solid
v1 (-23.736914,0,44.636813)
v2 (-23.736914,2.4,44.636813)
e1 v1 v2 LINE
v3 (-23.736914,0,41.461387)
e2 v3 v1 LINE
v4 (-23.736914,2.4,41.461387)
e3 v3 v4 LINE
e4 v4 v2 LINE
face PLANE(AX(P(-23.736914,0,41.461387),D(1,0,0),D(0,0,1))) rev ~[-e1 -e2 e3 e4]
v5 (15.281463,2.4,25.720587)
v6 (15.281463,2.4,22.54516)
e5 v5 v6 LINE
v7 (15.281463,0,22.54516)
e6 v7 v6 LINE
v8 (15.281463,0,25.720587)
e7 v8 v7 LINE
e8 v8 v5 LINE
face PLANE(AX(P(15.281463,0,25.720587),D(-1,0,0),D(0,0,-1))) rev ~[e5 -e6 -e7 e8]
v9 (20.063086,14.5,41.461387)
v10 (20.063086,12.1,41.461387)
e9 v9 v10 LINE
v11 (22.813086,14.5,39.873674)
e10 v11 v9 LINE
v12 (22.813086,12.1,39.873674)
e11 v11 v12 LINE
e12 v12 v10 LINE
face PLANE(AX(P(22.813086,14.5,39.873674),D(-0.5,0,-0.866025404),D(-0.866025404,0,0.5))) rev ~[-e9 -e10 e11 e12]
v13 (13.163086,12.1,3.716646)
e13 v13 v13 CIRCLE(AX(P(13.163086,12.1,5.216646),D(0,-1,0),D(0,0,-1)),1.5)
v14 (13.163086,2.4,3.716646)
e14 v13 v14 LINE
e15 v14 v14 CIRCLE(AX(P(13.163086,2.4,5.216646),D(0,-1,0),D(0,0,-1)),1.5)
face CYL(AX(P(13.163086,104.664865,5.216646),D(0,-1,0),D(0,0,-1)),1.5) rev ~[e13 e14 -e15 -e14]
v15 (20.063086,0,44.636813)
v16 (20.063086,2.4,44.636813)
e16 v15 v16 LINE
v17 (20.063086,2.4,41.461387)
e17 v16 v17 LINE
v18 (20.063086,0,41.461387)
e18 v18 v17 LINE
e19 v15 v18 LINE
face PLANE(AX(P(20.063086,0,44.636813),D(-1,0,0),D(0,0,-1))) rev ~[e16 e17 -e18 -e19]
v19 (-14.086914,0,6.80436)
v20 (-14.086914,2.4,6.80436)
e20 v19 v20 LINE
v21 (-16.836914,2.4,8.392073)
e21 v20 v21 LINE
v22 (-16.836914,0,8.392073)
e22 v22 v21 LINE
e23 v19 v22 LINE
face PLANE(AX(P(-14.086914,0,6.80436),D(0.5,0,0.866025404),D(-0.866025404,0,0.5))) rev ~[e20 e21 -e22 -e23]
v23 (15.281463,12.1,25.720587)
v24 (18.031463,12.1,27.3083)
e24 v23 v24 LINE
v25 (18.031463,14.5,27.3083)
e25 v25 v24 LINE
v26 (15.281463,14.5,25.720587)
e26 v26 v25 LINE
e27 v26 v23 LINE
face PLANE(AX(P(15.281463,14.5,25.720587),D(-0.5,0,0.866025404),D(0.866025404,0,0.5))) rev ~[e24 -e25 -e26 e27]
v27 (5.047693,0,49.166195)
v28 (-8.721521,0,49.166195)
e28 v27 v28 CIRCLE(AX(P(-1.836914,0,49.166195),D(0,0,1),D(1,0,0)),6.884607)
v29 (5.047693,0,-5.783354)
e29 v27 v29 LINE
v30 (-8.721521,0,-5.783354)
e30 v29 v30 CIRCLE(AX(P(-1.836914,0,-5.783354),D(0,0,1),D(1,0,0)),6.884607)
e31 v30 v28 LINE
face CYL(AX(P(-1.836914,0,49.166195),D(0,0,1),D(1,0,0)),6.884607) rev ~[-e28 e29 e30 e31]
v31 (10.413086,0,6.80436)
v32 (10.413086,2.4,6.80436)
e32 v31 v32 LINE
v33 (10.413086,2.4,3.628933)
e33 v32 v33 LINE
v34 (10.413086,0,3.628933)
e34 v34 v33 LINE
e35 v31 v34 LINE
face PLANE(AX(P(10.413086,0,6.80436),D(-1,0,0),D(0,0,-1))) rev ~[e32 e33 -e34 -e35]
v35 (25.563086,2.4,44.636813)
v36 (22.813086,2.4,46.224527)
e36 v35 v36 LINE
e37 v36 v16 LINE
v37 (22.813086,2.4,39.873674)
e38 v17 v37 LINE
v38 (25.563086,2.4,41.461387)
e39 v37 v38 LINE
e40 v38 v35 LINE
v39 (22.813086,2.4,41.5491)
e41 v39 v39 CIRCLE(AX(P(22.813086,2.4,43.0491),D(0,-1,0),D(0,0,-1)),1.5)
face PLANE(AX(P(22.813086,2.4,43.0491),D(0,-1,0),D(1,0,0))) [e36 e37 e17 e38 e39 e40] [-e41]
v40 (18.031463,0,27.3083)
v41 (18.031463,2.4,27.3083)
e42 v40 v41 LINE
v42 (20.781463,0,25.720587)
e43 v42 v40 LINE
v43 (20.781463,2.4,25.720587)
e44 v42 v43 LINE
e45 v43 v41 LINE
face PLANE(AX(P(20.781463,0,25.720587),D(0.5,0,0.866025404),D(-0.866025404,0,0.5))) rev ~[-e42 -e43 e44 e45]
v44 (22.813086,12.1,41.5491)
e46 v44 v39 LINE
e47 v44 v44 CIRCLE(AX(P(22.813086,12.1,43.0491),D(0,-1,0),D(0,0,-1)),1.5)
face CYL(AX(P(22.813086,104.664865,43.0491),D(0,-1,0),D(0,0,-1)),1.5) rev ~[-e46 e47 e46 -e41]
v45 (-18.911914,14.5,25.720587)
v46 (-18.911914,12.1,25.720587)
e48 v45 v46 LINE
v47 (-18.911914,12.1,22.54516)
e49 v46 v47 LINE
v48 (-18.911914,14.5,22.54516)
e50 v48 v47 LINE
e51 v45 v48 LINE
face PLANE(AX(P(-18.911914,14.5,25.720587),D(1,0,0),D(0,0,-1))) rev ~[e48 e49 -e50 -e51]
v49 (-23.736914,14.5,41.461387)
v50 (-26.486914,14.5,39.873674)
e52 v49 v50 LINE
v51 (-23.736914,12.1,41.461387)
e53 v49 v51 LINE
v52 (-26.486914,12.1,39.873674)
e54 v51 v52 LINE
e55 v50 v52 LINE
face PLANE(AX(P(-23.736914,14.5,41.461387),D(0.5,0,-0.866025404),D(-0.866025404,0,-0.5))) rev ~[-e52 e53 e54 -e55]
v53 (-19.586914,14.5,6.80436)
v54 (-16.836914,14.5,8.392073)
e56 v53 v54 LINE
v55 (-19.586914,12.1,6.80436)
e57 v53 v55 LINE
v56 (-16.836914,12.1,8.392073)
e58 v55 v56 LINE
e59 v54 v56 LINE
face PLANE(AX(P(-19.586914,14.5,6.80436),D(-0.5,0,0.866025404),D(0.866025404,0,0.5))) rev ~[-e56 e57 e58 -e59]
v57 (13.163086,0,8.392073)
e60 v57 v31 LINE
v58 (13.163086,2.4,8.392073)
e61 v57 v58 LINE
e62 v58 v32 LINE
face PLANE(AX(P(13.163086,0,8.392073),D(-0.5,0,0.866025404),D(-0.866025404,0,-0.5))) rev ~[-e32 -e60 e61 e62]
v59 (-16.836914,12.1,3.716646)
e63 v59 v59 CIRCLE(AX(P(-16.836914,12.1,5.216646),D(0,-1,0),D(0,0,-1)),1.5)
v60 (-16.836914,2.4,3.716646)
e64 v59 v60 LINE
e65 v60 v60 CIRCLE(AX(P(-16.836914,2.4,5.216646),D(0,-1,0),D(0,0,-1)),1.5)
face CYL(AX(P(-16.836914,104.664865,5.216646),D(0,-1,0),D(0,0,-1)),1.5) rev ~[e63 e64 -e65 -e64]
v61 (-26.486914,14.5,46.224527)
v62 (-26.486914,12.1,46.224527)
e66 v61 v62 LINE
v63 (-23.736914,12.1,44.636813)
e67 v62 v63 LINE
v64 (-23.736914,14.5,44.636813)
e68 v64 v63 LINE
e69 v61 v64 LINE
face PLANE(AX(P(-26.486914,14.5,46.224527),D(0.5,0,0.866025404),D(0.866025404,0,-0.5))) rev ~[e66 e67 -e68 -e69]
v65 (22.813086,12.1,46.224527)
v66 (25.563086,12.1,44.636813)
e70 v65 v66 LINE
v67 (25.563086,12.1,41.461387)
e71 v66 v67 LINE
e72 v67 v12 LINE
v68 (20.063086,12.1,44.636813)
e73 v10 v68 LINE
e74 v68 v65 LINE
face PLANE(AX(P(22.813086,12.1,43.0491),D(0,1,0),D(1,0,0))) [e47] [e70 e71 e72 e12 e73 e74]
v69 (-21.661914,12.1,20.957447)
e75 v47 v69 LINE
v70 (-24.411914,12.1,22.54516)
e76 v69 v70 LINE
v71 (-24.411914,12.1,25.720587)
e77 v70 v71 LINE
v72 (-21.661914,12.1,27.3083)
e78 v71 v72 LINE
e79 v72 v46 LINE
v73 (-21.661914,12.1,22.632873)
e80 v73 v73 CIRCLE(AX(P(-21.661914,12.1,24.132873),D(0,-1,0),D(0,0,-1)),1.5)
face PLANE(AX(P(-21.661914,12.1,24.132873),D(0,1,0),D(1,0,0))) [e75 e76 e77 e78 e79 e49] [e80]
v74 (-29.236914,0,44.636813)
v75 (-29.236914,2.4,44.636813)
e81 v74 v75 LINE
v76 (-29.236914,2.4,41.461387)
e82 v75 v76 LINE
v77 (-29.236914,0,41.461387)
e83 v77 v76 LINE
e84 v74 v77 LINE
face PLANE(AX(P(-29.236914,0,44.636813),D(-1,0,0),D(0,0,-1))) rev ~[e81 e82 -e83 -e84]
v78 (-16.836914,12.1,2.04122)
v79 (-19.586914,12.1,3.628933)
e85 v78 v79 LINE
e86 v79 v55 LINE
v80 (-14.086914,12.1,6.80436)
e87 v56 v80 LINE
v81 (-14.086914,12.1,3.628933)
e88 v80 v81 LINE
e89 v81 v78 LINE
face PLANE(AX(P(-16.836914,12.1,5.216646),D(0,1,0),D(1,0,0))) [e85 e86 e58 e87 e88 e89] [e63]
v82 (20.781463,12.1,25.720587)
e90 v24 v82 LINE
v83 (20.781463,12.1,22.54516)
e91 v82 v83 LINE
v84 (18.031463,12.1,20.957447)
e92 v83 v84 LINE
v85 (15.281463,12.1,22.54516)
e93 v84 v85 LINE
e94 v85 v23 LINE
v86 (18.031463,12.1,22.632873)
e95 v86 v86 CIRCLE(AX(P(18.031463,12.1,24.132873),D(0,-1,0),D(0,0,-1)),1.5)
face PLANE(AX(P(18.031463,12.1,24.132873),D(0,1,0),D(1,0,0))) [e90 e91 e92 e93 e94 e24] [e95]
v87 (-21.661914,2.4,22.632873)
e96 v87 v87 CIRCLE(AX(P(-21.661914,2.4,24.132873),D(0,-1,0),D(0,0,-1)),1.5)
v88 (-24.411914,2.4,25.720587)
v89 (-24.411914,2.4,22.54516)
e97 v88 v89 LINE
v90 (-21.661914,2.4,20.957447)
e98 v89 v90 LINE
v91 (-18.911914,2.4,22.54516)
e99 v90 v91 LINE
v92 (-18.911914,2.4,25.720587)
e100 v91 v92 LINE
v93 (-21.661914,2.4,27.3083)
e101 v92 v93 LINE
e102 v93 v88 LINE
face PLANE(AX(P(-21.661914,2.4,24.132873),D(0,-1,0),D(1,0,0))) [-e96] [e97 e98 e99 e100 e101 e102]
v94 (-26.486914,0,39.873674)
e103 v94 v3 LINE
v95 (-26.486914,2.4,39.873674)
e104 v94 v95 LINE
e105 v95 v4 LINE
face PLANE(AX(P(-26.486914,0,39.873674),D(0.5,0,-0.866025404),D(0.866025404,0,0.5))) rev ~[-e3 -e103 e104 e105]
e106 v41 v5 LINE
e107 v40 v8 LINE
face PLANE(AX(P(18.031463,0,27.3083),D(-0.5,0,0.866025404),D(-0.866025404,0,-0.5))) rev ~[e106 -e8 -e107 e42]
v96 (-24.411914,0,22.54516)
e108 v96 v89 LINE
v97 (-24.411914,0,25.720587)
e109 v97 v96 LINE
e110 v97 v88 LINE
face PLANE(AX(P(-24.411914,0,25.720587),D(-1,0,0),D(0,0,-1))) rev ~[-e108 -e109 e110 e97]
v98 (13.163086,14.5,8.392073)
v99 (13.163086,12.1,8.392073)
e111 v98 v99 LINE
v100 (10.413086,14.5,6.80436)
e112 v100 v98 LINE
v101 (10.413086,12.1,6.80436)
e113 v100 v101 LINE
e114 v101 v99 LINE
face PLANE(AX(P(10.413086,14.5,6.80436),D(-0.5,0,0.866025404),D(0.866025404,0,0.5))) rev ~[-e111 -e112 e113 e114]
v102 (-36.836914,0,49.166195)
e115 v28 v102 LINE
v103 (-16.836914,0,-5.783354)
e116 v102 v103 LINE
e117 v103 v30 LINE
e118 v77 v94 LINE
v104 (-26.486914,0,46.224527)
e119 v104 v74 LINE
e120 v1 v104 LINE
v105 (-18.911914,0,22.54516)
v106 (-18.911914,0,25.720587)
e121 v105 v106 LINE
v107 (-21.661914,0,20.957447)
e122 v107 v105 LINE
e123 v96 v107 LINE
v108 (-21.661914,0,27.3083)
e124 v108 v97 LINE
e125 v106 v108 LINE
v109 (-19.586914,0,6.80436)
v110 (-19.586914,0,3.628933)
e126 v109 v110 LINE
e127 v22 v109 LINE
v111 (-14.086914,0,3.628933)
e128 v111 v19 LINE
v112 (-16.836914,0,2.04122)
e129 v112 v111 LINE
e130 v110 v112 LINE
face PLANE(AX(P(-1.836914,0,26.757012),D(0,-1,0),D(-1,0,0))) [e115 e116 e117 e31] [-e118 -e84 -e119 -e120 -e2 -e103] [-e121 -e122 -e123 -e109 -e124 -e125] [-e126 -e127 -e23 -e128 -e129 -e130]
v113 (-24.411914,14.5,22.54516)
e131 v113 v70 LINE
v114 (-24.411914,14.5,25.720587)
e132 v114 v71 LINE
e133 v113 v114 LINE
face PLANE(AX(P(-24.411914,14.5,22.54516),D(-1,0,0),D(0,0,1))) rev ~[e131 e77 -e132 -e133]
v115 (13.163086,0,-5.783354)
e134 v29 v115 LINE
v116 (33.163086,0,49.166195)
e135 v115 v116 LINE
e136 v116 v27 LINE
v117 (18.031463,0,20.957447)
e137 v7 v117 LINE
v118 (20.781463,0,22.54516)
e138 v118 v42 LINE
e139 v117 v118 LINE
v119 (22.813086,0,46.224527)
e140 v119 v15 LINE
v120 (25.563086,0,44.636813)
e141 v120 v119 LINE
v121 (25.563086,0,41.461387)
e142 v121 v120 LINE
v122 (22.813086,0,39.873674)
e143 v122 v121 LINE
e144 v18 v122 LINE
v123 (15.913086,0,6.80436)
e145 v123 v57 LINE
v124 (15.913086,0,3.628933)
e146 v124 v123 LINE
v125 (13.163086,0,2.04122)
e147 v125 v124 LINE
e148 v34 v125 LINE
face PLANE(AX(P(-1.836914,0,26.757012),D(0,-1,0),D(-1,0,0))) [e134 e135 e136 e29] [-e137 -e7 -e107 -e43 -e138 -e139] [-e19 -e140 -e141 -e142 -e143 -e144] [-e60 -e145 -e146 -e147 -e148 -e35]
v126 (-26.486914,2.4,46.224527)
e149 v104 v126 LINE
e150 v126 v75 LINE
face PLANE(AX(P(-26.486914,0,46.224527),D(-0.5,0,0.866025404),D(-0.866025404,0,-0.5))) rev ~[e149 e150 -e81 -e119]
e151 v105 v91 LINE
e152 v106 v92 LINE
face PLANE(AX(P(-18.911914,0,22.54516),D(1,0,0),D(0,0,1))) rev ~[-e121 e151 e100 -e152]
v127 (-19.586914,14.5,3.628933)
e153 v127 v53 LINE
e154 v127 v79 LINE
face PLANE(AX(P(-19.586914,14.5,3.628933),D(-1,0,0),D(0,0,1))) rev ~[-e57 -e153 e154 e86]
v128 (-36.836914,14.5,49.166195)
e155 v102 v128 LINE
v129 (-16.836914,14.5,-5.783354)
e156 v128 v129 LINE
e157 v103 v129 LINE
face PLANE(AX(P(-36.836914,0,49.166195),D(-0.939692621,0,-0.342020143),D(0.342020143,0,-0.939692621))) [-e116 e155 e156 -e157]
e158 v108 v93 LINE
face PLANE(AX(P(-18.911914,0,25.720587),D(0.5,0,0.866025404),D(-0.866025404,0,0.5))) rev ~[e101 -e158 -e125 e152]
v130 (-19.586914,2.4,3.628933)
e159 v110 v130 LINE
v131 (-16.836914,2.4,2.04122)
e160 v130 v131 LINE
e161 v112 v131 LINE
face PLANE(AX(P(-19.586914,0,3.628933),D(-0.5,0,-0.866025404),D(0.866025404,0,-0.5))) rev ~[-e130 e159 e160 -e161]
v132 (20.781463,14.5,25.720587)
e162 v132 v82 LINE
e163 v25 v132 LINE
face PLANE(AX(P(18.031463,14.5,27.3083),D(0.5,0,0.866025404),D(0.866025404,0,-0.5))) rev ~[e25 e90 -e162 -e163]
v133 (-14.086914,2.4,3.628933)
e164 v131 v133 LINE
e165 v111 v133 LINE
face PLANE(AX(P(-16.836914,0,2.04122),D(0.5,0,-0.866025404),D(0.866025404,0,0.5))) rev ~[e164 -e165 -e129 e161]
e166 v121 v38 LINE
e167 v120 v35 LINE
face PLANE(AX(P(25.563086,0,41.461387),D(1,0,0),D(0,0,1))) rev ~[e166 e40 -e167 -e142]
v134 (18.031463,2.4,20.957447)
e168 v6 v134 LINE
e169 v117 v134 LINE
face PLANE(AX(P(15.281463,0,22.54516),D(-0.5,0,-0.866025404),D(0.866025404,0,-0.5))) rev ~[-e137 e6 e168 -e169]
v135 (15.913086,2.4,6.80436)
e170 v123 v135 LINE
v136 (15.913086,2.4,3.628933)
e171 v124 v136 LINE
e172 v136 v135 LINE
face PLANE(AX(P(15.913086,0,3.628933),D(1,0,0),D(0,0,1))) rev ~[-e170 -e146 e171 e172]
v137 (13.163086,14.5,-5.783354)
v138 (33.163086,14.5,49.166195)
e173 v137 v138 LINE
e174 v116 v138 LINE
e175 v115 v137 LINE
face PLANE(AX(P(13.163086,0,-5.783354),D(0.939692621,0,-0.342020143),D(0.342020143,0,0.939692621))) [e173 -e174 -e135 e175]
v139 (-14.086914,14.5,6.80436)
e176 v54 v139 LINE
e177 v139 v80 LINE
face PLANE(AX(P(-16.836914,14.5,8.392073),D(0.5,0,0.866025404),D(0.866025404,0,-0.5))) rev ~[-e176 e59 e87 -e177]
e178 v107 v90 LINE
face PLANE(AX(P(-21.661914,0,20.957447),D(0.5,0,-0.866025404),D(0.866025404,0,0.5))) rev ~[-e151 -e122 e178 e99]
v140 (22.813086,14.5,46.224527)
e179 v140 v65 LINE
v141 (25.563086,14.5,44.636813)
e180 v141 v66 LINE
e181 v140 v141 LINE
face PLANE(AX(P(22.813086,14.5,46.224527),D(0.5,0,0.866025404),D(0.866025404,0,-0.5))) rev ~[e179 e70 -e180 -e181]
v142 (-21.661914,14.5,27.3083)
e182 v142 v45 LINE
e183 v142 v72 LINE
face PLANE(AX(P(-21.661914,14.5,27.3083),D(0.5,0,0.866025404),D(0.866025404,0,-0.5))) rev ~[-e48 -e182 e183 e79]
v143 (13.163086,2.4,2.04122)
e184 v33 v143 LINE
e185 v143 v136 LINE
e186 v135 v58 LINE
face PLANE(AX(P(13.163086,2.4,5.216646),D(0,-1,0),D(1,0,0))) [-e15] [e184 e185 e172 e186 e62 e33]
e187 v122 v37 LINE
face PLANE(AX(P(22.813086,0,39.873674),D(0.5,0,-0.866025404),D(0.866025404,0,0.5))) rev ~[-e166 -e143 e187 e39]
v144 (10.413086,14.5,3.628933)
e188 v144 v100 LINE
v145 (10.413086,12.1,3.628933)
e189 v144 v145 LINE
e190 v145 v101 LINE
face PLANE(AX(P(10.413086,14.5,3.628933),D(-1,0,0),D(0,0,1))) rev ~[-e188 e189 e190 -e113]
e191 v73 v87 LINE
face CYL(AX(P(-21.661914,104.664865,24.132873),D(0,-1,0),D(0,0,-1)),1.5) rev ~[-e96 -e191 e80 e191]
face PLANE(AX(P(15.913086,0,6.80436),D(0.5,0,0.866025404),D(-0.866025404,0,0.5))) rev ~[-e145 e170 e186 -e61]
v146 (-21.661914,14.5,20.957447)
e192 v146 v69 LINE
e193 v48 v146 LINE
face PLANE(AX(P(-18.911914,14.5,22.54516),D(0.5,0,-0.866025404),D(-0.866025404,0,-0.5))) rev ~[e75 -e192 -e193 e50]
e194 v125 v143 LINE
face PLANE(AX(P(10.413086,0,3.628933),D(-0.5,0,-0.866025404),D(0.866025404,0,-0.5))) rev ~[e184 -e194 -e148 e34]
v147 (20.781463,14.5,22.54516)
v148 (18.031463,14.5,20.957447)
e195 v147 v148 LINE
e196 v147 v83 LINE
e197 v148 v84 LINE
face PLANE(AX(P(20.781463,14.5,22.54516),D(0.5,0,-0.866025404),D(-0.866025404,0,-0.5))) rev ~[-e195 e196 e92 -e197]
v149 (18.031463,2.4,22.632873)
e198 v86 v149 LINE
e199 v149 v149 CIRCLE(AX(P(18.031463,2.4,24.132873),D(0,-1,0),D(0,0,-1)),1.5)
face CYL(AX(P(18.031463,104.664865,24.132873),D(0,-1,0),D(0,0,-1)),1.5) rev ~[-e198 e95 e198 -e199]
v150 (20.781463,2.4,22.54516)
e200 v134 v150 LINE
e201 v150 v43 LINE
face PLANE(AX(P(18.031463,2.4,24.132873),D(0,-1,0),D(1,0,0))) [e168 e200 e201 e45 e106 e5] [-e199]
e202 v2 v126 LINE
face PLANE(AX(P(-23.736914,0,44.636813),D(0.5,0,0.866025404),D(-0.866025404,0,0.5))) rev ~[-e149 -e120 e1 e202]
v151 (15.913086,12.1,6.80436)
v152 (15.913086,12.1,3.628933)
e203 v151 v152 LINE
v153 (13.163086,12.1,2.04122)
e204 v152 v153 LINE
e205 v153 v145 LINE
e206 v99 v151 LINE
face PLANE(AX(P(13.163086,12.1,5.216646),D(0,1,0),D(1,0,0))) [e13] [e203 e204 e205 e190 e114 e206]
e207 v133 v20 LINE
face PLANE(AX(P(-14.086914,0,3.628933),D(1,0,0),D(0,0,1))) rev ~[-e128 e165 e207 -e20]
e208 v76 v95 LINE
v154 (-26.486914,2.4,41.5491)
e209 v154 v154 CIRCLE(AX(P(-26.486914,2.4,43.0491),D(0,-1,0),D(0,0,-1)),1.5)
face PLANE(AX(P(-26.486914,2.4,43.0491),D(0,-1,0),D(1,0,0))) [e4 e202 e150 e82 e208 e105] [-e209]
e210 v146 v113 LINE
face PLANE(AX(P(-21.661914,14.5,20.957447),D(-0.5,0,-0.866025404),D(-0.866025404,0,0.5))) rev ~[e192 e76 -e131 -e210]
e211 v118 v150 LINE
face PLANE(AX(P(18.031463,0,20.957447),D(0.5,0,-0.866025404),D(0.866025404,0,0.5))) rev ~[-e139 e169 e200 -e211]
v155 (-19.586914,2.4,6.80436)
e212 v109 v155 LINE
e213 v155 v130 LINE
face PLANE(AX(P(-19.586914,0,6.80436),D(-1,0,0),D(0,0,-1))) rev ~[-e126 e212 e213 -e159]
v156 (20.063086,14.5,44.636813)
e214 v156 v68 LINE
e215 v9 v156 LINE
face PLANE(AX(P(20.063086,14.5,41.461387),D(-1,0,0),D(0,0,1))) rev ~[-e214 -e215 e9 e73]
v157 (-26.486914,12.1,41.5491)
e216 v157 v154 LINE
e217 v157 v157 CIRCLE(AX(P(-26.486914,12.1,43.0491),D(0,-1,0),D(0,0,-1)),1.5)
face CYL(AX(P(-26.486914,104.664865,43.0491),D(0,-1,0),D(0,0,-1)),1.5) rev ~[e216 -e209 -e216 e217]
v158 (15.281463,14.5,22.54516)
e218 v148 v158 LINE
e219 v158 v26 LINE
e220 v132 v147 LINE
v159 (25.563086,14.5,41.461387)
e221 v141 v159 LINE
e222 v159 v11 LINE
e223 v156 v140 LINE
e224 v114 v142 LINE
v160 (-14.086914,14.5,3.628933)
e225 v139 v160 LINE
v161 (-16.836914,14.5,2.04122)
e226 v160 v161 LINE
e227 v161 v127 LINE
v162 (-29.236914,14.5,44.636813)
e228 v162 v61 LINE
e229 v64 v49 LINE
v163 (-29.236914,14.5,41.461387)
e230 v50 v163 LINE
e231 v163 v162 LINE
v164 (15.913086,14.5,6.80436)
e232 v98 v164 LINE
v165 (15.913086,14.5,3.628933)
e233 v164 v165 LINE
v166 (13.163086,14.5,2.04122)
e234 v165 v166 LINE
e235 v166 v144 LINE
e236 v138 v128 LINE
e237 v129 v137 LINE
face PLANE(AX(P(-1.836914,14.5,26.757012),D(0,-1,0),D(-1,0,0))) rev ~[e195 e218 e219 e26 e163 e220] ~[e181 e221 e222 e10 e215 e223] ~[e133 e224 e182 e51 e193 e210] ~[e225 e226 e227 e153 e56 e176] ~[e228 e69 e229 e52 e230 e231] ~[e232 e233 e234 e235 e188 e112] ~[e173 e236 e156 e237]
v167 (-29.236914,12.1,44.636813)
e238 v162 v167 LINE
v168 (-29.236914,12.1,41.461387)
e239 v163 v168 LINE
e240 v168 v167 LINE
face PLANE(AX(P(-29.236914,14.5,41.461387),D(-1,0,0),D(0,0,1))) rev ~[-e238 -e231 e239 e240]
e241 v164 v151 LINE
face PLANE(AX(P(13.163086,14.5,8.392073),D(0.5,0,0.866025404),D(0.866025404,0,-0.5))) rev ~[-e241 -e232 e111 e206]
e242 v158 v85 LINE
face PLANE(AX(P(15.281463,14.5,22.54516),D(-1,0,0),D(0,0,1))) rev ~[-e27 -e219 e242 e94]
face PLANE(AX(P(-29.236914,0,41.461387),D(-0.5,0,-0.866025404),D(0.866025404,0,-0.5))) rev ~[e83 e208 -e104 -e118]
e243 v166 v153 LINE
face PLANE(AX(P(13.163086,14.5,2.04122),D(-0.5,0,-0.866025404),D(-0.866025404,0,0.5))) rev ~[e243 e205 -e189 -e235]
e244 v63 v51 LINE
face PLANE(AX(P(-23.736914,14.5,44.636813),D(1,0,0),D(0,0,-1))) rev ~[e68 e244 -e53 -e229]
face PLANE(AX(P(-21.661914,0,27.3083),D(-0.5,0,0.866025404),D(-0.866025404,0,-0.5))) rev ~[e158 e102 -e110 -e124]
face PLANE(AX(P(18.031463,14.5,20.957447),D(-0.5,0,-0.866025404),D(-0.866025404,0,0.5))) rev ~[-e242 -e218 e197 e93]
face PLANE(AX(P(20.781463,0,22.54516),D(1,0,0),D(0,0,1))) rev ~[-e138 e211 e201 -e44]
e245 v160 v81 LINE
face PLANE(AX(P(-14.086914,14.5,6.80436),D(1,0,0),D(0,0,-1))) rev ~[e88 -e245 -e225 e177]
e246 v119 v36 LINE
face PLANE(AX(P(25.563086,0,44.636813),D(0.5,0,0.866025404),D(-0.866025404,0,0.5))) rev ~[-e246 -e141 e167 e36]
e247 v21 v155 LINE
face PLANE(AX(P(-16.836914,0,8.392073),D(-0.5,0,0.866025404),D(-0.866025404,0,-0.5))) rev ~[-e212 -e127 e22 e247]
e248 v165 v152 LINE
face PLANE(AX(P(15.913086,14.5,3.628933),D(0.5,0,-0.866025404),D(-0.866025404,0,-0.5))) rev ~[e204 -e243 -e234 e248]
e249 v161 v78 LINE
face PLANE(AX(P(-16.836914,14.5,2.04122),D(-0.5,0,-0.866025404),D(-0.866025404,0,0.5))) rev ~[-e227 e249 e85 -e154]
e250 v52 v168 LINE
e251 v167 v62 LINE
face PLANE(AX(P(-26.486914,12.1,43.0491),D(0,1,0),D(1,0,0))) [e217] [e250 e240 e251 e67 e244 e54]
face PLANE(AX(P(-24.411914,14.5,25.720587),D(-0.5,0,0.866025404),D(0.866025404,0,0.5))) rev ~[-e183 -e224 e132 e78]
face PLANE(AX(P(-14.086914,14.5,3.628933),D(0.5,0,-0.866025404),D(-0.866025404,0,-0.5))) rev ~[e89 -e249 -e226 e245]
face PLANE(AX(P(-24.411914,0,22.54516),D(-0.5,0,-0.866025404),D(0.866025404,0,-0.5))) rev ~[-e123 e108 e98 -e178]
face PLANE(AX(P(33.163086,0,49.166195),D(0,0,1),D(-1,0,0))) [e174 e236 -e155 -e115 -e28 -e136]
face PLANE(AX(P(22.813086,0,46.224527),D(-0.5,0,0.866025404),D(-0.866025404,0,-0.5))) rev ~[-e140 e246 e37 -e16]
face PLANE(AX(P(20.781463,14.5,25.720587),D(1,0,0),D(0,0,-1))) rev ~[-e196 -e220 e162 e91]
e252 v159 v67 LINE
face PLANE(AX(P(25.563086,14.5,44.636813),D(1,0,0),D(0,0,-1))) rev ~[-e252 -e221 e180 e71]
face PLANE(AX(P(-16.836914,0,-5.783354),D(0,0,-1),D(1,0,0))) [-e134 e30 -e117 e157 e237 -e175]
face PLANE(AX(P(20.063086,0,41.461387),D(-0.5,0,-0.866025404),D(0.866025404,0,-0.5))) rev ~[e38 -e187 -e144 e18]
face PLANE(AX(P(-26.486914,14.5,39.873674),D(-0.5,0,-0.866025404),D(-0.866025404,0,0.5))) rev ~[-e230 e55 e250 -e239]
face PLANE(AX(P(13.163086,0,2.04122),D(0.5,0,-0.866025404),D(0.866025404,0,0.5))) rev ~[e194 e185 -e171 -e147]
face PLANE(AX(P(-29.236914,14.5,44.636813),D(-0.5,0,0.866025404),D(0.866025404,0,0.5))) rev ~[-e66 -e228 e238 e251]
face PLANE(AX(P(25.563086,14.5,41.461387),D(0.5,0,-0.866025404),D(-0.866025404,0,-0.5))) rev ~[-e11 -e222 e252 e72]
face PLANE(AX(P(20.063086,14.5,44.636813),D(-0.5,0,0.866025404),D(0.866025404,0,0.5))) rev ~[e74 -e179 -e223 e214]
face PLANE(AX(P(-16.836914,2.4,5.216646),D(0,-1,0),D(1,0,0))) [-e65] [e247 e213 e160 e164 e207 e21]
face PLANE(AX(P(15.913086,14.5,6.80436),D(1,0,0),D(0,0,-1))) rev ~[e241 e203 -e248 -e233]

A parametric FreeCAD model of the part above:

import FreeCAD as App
import Part
import Sketcher
Q = App.Units.Quantity

doc = App.newDocument("Part")
body = doc.addObject("PartDesign::Body", "Body")

sketch1 = body.newObject("Sketcher::SketchObject", "Sketch")
sketch1.AttachmentSupport = (doc.getObject("XZ_Plane"), [""])
sketch1.MapMode = "FlatFace"
sketch1.addGeometry(Part.LineSegment(App.Vector(13, -6, 0), App.Vector(-17, -6, 0)), False)
sketch1.addGeometry(Part.LineSegment(App.Vector(-17, -6, 0), App.Vector(-37, 49, 0)), False)
sketch1.addGeometry(Part.LineSegment(App.Vector(-37, 49, 0), App.Vector(33, 49, 0)), False)
sketch1.addGeometry(Part.LineSegment(App.Vector(33, 49, 0), App.Vector(13, -6, 0)), False)
sketch1.addConstraint(Sketcher.Constraint("Coincident", 0, 2, 1, 1))
sketch1.addConstraint(Sketcher.Constraint("Coincident", 1, 2, 2, 1))
sketch1.addConstraint(Sketcher.Constraint("Coincident", 2, 2, 3, 1))
sketch1.addConstraint(Sketcher.Constraint("Coincident", 3, 2, 0, 1))
sketch1.addConstraint(Sketcher.Constraint("Horizontal", 0))
sketch1.addConstraint(Sketcher.Constraint("Horizontal", 2))
sketch1.addConstraint(Sketcher.Constraint("Equal", 1, 3))
sketch1.addConstraint(Sketcher.Constraint("DistanceX", 0, 2, 0, 1, Q("30 mm")))
sketch1.addConstraint(Sketcher.Constraint("DistanceX", 2, 1, 2, 2, Q("70 mm")))
sketch1.addConstraint(Sketcher.Constraint("Angle", 1, Q("110 deg")))
sketch1.addConstraint(Sketcher.Constraint("DistanceX", 0, 2, -1, 1, Q("16.836914 mm")))
sketch1.addConstraint(Sketcher.Constraint("DistanceY", 0, 2, -1, 1, Q("5.783354 mm")))
pad1 = body.newObject("PartDesign::Pad", "Pad")
pad1.Profile = sketch1
pad1.Length = 14.5
pad1.Reversed = True

sketch2 = body.newObject("Sketcher::SketchObject", "Sketch001")
sketch2.AttachmentSupport = (doc.getObject("XY_Plane"), [""])
sketch2.MapMode = "FlatFace"
sketch2.AttachmentOffset = App.Placement(App.Vector(0, 0, 49.166195), App.Rotation())
sketch2.addGeometry(Part.Circle(App.Vector(-2, 0, 0), App.Vector(0, 0, 1), 7), False)
sketch2.addConstraint(Sketcher.Constraint("PointOnObject", 0, 3, -1))
sketch2.addConstraint(Sketcher.Constraint("Diameter", 0, Q("13.769213 mm")))
sketch2.addConstraint(Sketcher.Constraint("DistanceX", 0, 3, -1, 1, Q("1.836914 mm")))
pocket1 = body.newObject("PartDesign::Pocket", "Pocket")
pocket1.Profile = sketch2
pocket1.Length = 88

sketch3 = body.newObject("Sketcher::SketchObject", "Sketch002")
sketch3.AttachmentSupport = (doc.getObject("XZ_Plane"), [""])
sketch3.MapMode = "FlatFace"
sketch3.AttachmentOffset = App.Placement(App.Vector(0, 0, -14.5), App.Rotation())
sketch3.addGeometry(Part.LineSegment(App.Vector(-21.7, 27.3, 0), App.Vector(-18.9, 25.7, 0)), False)
sketch3.addGeometry(Part.LineSegment(App.Vector(-18.9, 25.7, 0), App.Vector(-18.9, 22.5, 0)), False)
sketch3.addGeometry(Part.LineSegment(App.Vector(-18.9, 22.5, 0), App.Vector(-21.7, 21, 0)), False)
sketch3.addGeometry(Part.LineSegment(App.Vector(-21.7, 21, 0), App.Vector(-24.4, 22.5, 0)), False)
sketch3.addGeometry(Part.LineSegment(App.Vector(-24.4, 22.5, 0), App.Vector(-24.4, 25.7, 0)), False)
sketch3.addGeometry(Part.LineSegment(App.Vector(-24.4, 25.7, 0), App.Vector(-21.7, 27.3, 0)), False)
sketch3.addGeometry(Part.LineSegment(App.Vector(-26.5, 46.2, 0), App.Vector(-23.7, 44.6, 0)), False)
sketch3.addGeometry(Part.LineSegment(App.Vector(-23.7, 44.6, 0), App.Vector(-23.7, 41.5, 0)), False)
sketch3.addGeometry(Part.LineSegment(App.Vector(-23.7, 41.5, 0), App.Vector(-26.5, 39.9, 0)), False)
sketch3.addGeometry(Part.LineSegment(App.Vector(-26.5, 39.9, 0), App.Vector(-29.2, 41.5, 0)), False)
sketch3.addGeometry(Part.LineSegment(App.Vector(-29.2, 41.5, 0), App.Vector(-29.2, 44.6, 0)), False)
sketch3.addGeometry(Part.LineSegment(App.Vector(-29.2, 44.6, 0), App.Vector(-26.5, 46.2, 0)), False)
sketch3.addGeometry(Part.LineSegment(App.Vector(22.8, 46.2, 0), App.Vector(25.6, 44.6, 0)), False)
sketch3.addGeometry(Part.LineSegment(App.Vector(25.6, 44.6, 0), App.Vector(25.6, 41.5, 0)), False)
sketch3.addGeometry(Part.LineSegment(App.Vector(25.6, 41.5, 0), App.Vector(22.8, 39.9, 0)), False)
sketch3.addGeometry(Part.LineSegment(App.Vector(22.8, 39.9, 0), App.Vector(20.1, 41.5, 0)), False)
sketch3.addGeometry(Part.LineSegment(App.Vector(20.1, 41.5, 0), App.Vector(20.1, 44.6, 0)), False)
sketch3.addGeometry(Part.LineSegment(App.Vector(20.1, 44.6, 0), App.Vector(22.8, 46.2, 0)), False)
sketch3.addGeometry(Part.LineSegment(App.Vector(18, 27.3, 0), App.Vector(20.8, 25.7, 0)), False)
sketch3.addGeometry(Part.LineSegment(App.Vector(20.8, 25.7, 0), App.Vector(20.8, 22.5, 0)), False)
sketch3.addGeometry(Part.LineSegment(App.Vector(20.8, 22.5, 0), App.Vector(18, 21, 0)), False)
sketch3.addGeometry(Part.LineSegment(App.Vector(18, 21, 0), App.Vector(15.3, 22.5, 0)), False)
sketch3.addGeometry(Part.LineSegment(App.Vector(15.3, 22.5, 0), App.Vector(15.3, 25.7, 0)), False)
sketch3.addGeometry(Part.LineSegment(App.Vector(15.3, 25.7, 0), App.Vector(18, 27.3, 0)), False)
sketch3.addGeometry(Part.LineSegment(App.Vector(-16.8, 8.4, 0), App.Vector(-14.1, 6.8, 0)), False)
sketch3.addGeometry(Part.LineSegment(App.Vector(-14.1, 6.8, 0), App.Vector(-14.1, 3.6, 0)), False)
sketch3.addGeometry(Part.LineSegment(App.Vector(-14.1, 3.6, 0), App.Vector(-16.8, 2, 0)), False)
sketch3.addGeometry(Part.LineSegment(App.Vector(-16.8, 2, 0), App.Vector(-19.6, 3.6, 0)), False)
sketch3.addGeometry(Part.LineSegment(App.Vector(-19.6, 3.6, 0), App.Vector(-19.6, 6.8, 0)), False)
sketch3.addGeometry(Part.LineSegment(App.Vector(-19.6, 6.8, 0), App.Vector(-16.8, 8.4, 0)), False)
sketch3.addGeometry(Part.LineSegment(App.Vector(13.2, 8.4, 0), App.Vector(15.9, 6.8, 0)), False)
sketch3.addGeometry(Part.LineSegment(App.Vector(15.9, 6.8, 0), App.Vector(15.9, 3.6, 0)), False)
sketch3.addGeometry(Part.LineSegment(App.Vector(15.9, 3.6, 0), App.Vector(13.2, 2, 0)), False)
sketch3.addGeometry(Part.LineSegment(App.Vector(13.2, 2, 0), App.Vector(10.4, 3.6, 0)), False)
sketch3.addGeometry(Part.LineSegment(App.Vector(10.4, 3.6, 0), App.Vector(10.4, 6.8, 0)), False)
sketch3.addGeometry(Part.LineSegment(App.Vector(10.4, 6.8, 0), App.Vector(13.2, 8.4, 0)), False)
sketch3.addConstraint(Sketcher.Constraint("Coincident", 0, 2, 1, 1))
sketch3.addConstraint(Sketcher.Constraint("Coincident", 1, 2, 2, 1))
sketch3.addConstraint(Sketcher.Constraint("Coincident", 2, 2, 3, 1))
sketch3.addConstraint(Sketcher.Constraint("Coincident", 3, 2, 4, 1))
sketch3.addConstraint(Sketcher.Constraint("Coincident", 4, 2, 5, 1))
sketch3.addConstraint(Sketcher.Constraint("Coincident", 5, 2, 0, 1))
sketch3.addConstraint(Sketcher.Constraint("Coincident", 6, 2, 7, 1))
sketch3.addConstraint(Sketcher.Constraint("Coincident", 7, 2, 8, 1))
sketch3.addConstraint(Sketcher.Constraint("Coincident", 8, 2, 9, 1))
sketch3.addConstraint(Sketcher.Constraint("Coincident", 9, 2, 10, 1))
sketch3.addConstraint(Sketcher.Constraint("Coincident", 10, 2, 11, 1))
sketch3.addConstraint(Sketcher.Constraint("Coincident", 11, 2, 6, 1))
sketch3.addConstraint(Sketcher.Constraint("Coincident", 12, 2, 13, 1))
sketch3.addConstraint(Sketcher.Constraint("Coincident", 13, 2, 14, 1))
sketch3.addConstraint(Sketcher.Constraint("Coincident", 14, 2, 15, 1))
sketch3.addConstraint(Sketcher.Constraint("Coincident", 15, 2, 16, 1))
sketch3.addConstraint(Sketcher.Constraint("Coincident", 16, 2, 17, 1))
sketch3.addConstraint(Sketcher.Constraint("Coincident", 17, 2, 12, 1))
sketch3.addConstraint(Sketcher.Constraint("Coincident", 18, 2, 19, 1))
sketch3.addConstraint(Sketcher.Constraint("Coincident", 19, 2, 20, 1))
sketch3.addConstraint(Sketcher.Constraint("Coincident", 20, 2, 21, 1))
sketch3.addConstraint(Sketcher.Constraint("Coincident", 21, 2, 22, 1))
sketch3.addConstraint(Sketcher.Constraint("Coincident", 22, 2, 23, 1))
sketch3.addConstraint(Sketcher.Constraint("Coincident", 23, 2, 18, 1))
sketch3.addConstraint(Sketcher.Constraint("Coincident", 24, 2, 25, 1))
sketch3.addConstraint(Sketcher.Constraint("Coincident", 25, 2, 26, 1))
sketch3.addConstraint(Sketcher.Constraint("Coincident", 26, 2, 27, 1))
sketch3.addConstraint(Sketcher.Constraint("Coincident", 27, 2, 28, 1))
sketch3.addConstraint(Sketcher.Constraint("Coincident", 28, 2, 29, 1))
sketch3.addConstraint(Sketcher.Constraint("Coincident", 29, 2, 24, 1))
sketch3.addConstraint(Sketcher.Constraint("Coincident", 30, 2, 31, 1))
sketch3.addConstraint(Sketcher.Constraint("Coincident", 31, 2, 32, 1))
sketch3.addConstraint(Sketcher.Constraint("Coincident", 32, 2, 33, 1))
sketch3.addConstraint(Sketcher.Constraint("Coincident", 33, 2, 34, 1))
sketch3.addConstraint(Sketcher.Constraint("Coincident", 34, 2, 35, 1))
sketch3.addConstraint(Sketcher.Constraint("Coincident", 35, 2, 30, 1))
sketch3.addConstraint(Sketcher.Constraint("Vertical", 1))
sketch3.addConstraint(Sketcher.Constraint("Vertical", 4))
sketch3.addConstraint(Sketcher.Constraint("Vertical", 7))
sketch3.addConstraint(Sketcher.Constraint("Vertical", 10))
sketch3.addConstraint(Sketcher.Constraint("Vertical", 13))
sketch3.addConstraint(Sketcher.Constraint("Vertical", 16))
sketch3.addConstraint(Sketcher.Constraint("Vertical", 19))
sketch3.addConstraint(Sketcher.Constraint("Vertical", 22))
sketch3.addConstraint(Sketcher.Constraint("Vertical", 25))
sketch3.addConstraint(Sketcher.Constraint("Vertical", 28))
sketch3.addConstraint(Sketcher.Constraint("Vertical", 31))
sketch3.addConstraint(Sketcher.Constraint("Vertical", 34))
sketch3.addConstraint(Sketcher.Constraint("Parallel", 0, 3))
sketch3.addConstraint(Sketcher.Constraint("Parallel", 2, 5))
sketch3.addConstraint(Sketcher.Constraint("Parallel", 3, 6))
sketch3.addConstraint(Sketcher.Constraint("Parallel", 5, 8))
sketch3.addConstraint(Sketcher.Constraint("Parallel", 6, 9))
sketch3.addConstraint(Sketcher.Constraint("Parallel", 8, 11))
sketch3.addConstraint(Sketcher.Constraint("Parallel", 9, 12))
sketch3.addConstraint(Sketcher.Constraint("Parallel", 11, 14))
sketch3.addConstraint(Sketcher.Constraint("Parallel", 12, 15))
sketch3.addConstraint(Sketcher.Constraint("Parallel", 14, 17))
sketch3.addConstraint(Sketcher.Constraint("Parallel", 15, 18))
sketch3.addConstraint(Sketcher.Constraint("Parallel", 17, 20))
sketch3.addConstraint(Sketcher.Constraint("Parallel", 18, 21))
sketch3.addConstraint(Sketcher.Constraint("Parallel", 20, 23))
sketch3.addConstraint(Sketcher.Constraint("Parallel", 21, 24))
sketch3.addConstraint(Sketcher.Constraint("Parallel", 23, 26))
sketch3.addConstraint(Sketcher.Constraint("Parallel", 24, 27))
sketch3.addConstraint(Sketcher.Constraint("Parallel", 26, 29))
sketch3.addConstraint(Sketcher.Constraint("Parallel", 27, 30))
sketch3.addConstraint(Sketcher.Constraint("Parallel", 29, 32))
sketch3.addConstraint(Sketcher.Constraint("Parallel", 30, 33))
sketch3.addConstraint(Sketcher.Constraint("Parallel", 32, 35))
sketch3.addConstraint(Sketcher.Constraint("Horizontal", 1, 2, 3, 2))
sketch3.addConstraint(Sketcher.Constraint("Horizontal", 0, 2, 4, 2))
sketch3.addConstraint(Sketcher.Constraint("Horizontal", 7, 2, 9, 2))
sketch3.addConstraint(Sketcher.Constraint("Horizontal", 6, 2, 10, 2))
sketch3.addConstraint(Sketcher.Constraint("Horizontal", 10, 2, 12, 2))
sketch3.addConstraint(Sketcher.Constraint("Horizontal", 9, 2, 13, 2))
sketch3.addConstraint(Sketcher.Constraint("Horizontal", 8, 2, 14, 2))
sketch3.addConstraint(Sketcher.Constraint("Horizontal", 13, 2, 15, 2))
sketch3.addConstraint(Sketcher.Constraint("Horizontal", 12, 2, 16, 2))
sketch3.addConstraint(Sketcher.Constraint("Horizontal", 4, 2, 18, 2))
sketch3.addConstraint(Sketcher.Constraint("Horizontal", 3, 2, 19, 2))
sketch3.addConstraint(Sketcher.Constraint("Horizontal", 2, 2, 20, 2))
sketch3.addConstraint(Sketcher.Constraint("Horizontal", 19, 2, 21, 2))
sketch3.addConstraint(Sketcher.Constraint("Horizontal", 18, 2, 22, 2))
sketch3.addConstraint(Sketcher.Constraint("Horizontal", 25, 2, 27, 2))
sketch3.addConstraint(Sketcher.Constraint("Horizontal", 24, 2, 28, 2))
sketch3.addConstraint(Sketcher.Constraint("Horizontal", 28, 2, 30, 2))
sketch3.addConstraint(Sketcher.Constraint("Horizontal", 27, 2, 31, 2))
sketch3.addConstraint(Sketcher.Constraint("Horizontal", 26, 2, 32, 2))
sketch3.addConstraint(Sketcher.Constraint("Horizontal", 31, 2, 33, 2))
sketch3.addConstraint(Sketcher.Constraint("Horizontal", 30, 2, 34, 2))
sketch3.addConstraint(Sketcher.Constraint("Vertical", 2, 2, 5, 2))
sketch3.addConstraint(Sketcher.Constraint("Equal", 4, 7))
sketch3.addConstraint(Sketcher.Constraint("Equal", 22, 25))
sketch3.addConstraint(Sketcher.Constraint("Equal", 5, 6))
sketch3.addConstraint(Sketcher.Constraint("Equal", 23, 24))
sketch3.addConstraint(Sketcher.Constraint("Angle", 0, Q("-30 deg")))
sketch3.addConstraint(Sketcher.Constraint("DistanceX", 3, 2, 1, 2, Q("5.5 mm")))
sketch3.addConstraint(Sketcher.Constraint("DistanceX", 6, 2, 12, 2, Q("49.3 mm")))
sketch3.addConstraint(Sketcher.Constraint("DistanceX", 6, 2, 5, 2, Q("2.075 mm")))
sketch3.addConstraint(Sketcher.Constraint("DistanceX", 2, 2, 24, 2, Q("7.575 mm")))
sketch3.addConstraint(Sketcher.Constraint("DistanceY", -1, 1, 5, 2, Q("27.3083 mm")))
sketch3.addConstraint(Sketcher.Constraint("DistanceY", 4, 2, 7, 2, Q("15.7408 mm")))
sketch3.addConstraint(Sketcher.Constraint("DistanceY", 24, 2, 1, 2, Q("15.7408 mm")))
sketch3.addConstraint(Sketcher.Constraint("DistanceY", 1, 2, 1, 1, Q("3.175426 mm")))
sketch3.addConstraint(Sketcher.Constraint("DistanceX", 0, 2, -1, 1, Q("18.911914 mm")))
sketch3.addConstraint(Sketcher.Constraint("DistanceX", -1, 1, 18, 2, Q("20.781463 mm")))
sketch3.addConstraint(Sketcher.Constraint("DistanceX", -1, 1, 30, 2, Q("15.913086 mm")))
pocket2 = body.newObject("PartDesign::Pocket", "Pocket001")
pocket2.Profile = sketch3
pocket2.Length = 2.4
pocket2.Reversed = True

sketch4 = body.newObject("Sketcher::SketchObject", "Sketch003")
sketch4.AttachmentSupport = (doc.getObject("XZ_Plane"), [""])
sketch4.MapMode = "FlatFace"
sketch4.addGeometry(Part.LineSegment(App.Vector(-26.5, 39.9, 0), App.Vector(-23.7, 41.5, 0)), False)
sketch4.addGeometry(Part.LineSegment(App.Vector(-23.7, 41.5, 0), App.Vector(-23.7, 44.6, 0)), False)
sketch4.addGeometry(Part.LineSegment(App.Vector(-23.7, 44.6, 0), App.Vector(-26.5, 46.2, 0)), False)
sketch4.addGeometry(Part.LineSegment(App.Vector(-26.5, 46.2, 0), App.Vector(-29.2, 44.6, 0)), False)
sketch4.addGeometry(Part.LineSegment(App.Vector(-29.2, 44.6, 0), App.Vector(-29.2, 41.5, 0)), False)
sketch4.addGeometry(Part.LineSegment(App.Vector(-29.2, 41.5, 0), App.Vector(-26.5, 39.9, 0)), False)
sketch4.addGeometry(Part.LineSegment(App.Vector(-21.7, 21, 0), App.Vector(-18.9, 22.5, 0)), False)
sketch4.addGeometry(Part.LineSegment(App.Vector(-18.9, 22.5, 0), App.Vector(-18.9, 25.7, 0)), False)
sketch4.addGeometry(Part.LineSegment(App.Vector(-18.9, 25.7, 0), App.Vector(-21.7, 27.3, 0)), False)
sketch4.addGeometry(Part.LineSegment(App.Vector(-21.7, 27.3, 0), App.Vector(-24.4, 25.7, 0)), False)
sketch4.addGeometry(Part.LineSegment(App.Vector(-24.4, 25.7, 0), App.Vector(-24.4, 22.5, 0)), False)
sketch4.addGeometry(Part.LineSegment(App.Vector(-24.4, 22.5, 0), App.Vector(-21.7, 21, 0)), False)
sketch4.addGeometry(Part.LineSegment(App.Vector(18, 21, 0), App.Vector(20.8, 22.5, 0)), False)
sketch4.addGeometry(Part.LineSegment(App.Vector(20.8, 22.5, 0), App.Vector(20.8, 25.7, 0)), False)
sketch4.addGeometry(Part.LineSegment(App.Vector(20.8, 25.7, 0), App.Vector(18, 27.3, 0)), False)
sketch4.addGeometry(Part.LineSegment(App.Vector(18, 27.3, 0), App.Vector(15.3, 25.7, 0)), False)
sketch4.addGeometry(Part.LineSegment(App.Vector(15.3, 25.7, 0), App.Vector(15.3, 22.5, 0)), False)
sketch4.addGeometry(Part.LineSegment(App.Vector(15.3, 22.5, 0), App.Vector(18, 21, 0)), False)
sketch4.addGeometry(Part.LineSegment(App.Vector(22.8, 39.9, 0), App.Vector(25.6, 41.5, 0)), False)
sketch4.addGeometry(Part.LineSegment(App.Vector(25.6, 41.5, 0), App.Vector(25.6, 44.6, 0)), False)
sketch4.addGeometry(Part.LineSegment(App.Vector(25.6, 44.6, 0), App.Vector(22.8, 46.2, 0)), False)
sketch4.addGeometry(Part.LineSegment(App.Vector(22.8, 46.2, 0), App.Vector(20.1, 44.6, 0)), False)
sketch4.addGeometry(Part.LineSegment(App.Vector(20.1, 44.6, 0), App.Vector(20.1, 41.5, 0)), False)
sketch4.addGeometry(Part.LineSegment(App.Vector(20.1, 41.5, 0), App.Vector(22.8, 39.9, 0)), False)
sketch4.addGeometry(Part.LineSegment(App.Vector(-16.8, 2, 0), App.Vector(-14.1, 3.6, 0)), False)
sketch4.addGeometry(Part.LineSegment(App.Vector(-14.1, 3.6, 0), App.Vector(-14.1, 6.8, 0)), False)
sketch4.addGeometry(Part.LineSegment(App.Vector(-14.1, 6.8, 0), App.Vector(-16.8, 8.4, 0)), False)
sketch4.addGeometry(Part.LineSegment(App.Vector(-16.8, 8.4, 0), App.Vector(-19.6, 6.8, 0)), False)
sketch4.addGeometry(Part.LineSegment(App.Vector(-19.6, 6.8, 0), App.Vector(-19.6, 3.6, 0)), False)
sketch4.addGeometry(Part.LineSegment(App.Vector(-19.6, 3.6, 0), App.Vector(-16.8, 2, 0)), False)
sketch4.addGeometry(Part.LineSegment(App.Vector(13.2, 2, 0), App.Vector(15.9, 3.6, 0)), False)
sketch4.addGeometry(Part.LineSegment(App.Vector(15.9, 3.6, 0), App.Vector(15.9, 6.8, 0)), False)
sketch4.addGeometry(Part.LineSegment(App.Vector(15.9, 6.8, 0), App.Vector(13.2, 8.4, 0)), False)
sketch4.addGeometry(Part.LineSegment(App.Vector(13.2, 8.4, 0), App.Vector(10.4, 6.8, 0)), False)
sketch4.addGeometry(Part.LineSegment(App.Vector(10.4, 6.8, 0), App.Vector(10.4, 3.6, 0)), False)
sketch4.addGeometry(Part.LineSegment(App.Vector(10.4, 3.6, 0), App.Vector(13.2, 2, 0)), False)
sketch4.addConstraint(Sketcher.Constraint("Coincident", 0, 2, 1, 1))
sketch4.addConstraint(Sketcher.Constraint("Coincident", 1, 2, 2, 1))
sketch4.addConstraint(Sketcher.Constraint("Coincident", 2, 2, 3, 1))
sketch4.addConstraint(Sketcher.Constraint("Coincident", 3, 2, 4, 1))
sketch4.addConstraint(Sketcher.Constraint("Coincident", 4, 2, 5, 1))
sketch4.addConstraint(Sketcher.Constraint("Coincident", 5, 2, 0, 1))
sketch4.addConstraint(Sketcher.Constraint("Coincident", 6, 2, 7, 1))
sketch4.addConstraint(Sketcher.Constraint("Coincident", 7, 2, 8, 1))
sketch4.addConstraint(Sketcher.Constraint("Coincident", 8, 2, 9, 1))
sketch4.addConstraint(Sketcher.Constraint("Coincident", 9, 2, 10, 1))
sketch4.addConstraint(Sketcher.Constraint("Coincident", 10, 2, 11, 1))
sketch4.addConstraint(Sketcher.Constraint("Coincident", 11, 2, 6, 1))
sketch4.addConstraint(Sketcher.Constraint("Coincident", 12, 2, 13, 1))
sketch4.addConstraint(Sketcher.Constraint("Coincident", 13, 2, 14, 1))
sketch4.addConstraint(Sketcher.Constraint("Coincident", 14, 2, 15, 1))
sketch4.addConstraint(Sketcher.Constraint("Coincident", 15, 2, 16, 1))
sketch4.addConstraint(Sketcher.Constraint("Coincident", 16, 2, 17, 1))
sketch4.addConstraint(Sketcher.Constraint("Coincident", 17, 2, 12, 1))
sketch4.addConstraint(Sketcher.Constraint("Coincident", 18, 2, 19, 1))
sketch4.addConstraint(Sketcher.Constraint("Coincident", 19, 2, 20, 1))
sketch4.addConstraint(Sketcher.Constraint("Coincident", 20, 2, 21, 1))
sketch4.addConstraint(Sketcher.Constraint("Coincident", 21, 2, 22, 1))
sketch4.addConstraint(Sketcher.Constraint("Coincident", 22, 2, 23, 1))
sketch4.addConstraint(Sketcher.Constraint("Coincident", 23, 2, 18, 1))
sketch4.addConstraint(Sketcher.Constraint("Coincident", 24, 2, 25, 1))
sketch4.addConstraint(Sketcher.Constraint("Coincident", 25, 2, 26, 1))
sketch4.addConstraint(Sketcher.Constraint("Coincident", 26, 2, 27, 1))
sketch4.addConstraint(Sketcher.Constraint("Coincident", 27, 2, 28, 1))
sketch4.addConstraint(Sketcher.Constraint("Coincident", 28, 2, 29, 1))
sketch4.addConstraint(Sketcher.Constraint("Coincident", 29, 2, 24, 1))
sketch4.addConstraint(Sketcher.Constraint("Coincident", 30, 2, 31, 1))
sketch4.addConstraint(Sketcher.Constraint("Coincident", 31, 2, 32, 1))
sketch4.addConstraint(Sketcher.Constraint("Coincident", 32, 2, 33, 1))
sketch4.addConstraint(Sketcher.Constraint("Coincident", 33, 2, 34, 1))
sketch4.addConstraint(Sketcher.Constraint("Coincident", 34, 2, 35, 1))
sketch4.addConstraint(Sketcher.Constraint("Coincident", 35, 2, 30, 1))
sketch4.addConstraint(Sketcher.Constraint("Vertical", 1))
sketch4.addConstraint(Sketcher.Constraint("Vertical", 4))
sketch4.addConstraint(Sketcher.Constraint("Vertical", 7))
sketch4.addConstraint(Sketcher.Constraint("Vertical", 10))
sketch4.addConstraint(Sketcher.Constraint("Vertical", 13))
sketch4.addConstraint(Sketcher.Constraint("Vertical", 16))
sketch4.addConstraint(Sketcher.Constraint("Vertical", 19))
sketch4.addConstraint(Sketcher.Constraint("Vertical", 22))
sketch4.addConstraint(Sketcher.Constraint("Vertical", 25))
sketch4.addConstraint(Sketcher.Constraint("Vertical", 28))
sketch4.addConstraint(Sketcher.Constraint("Vertical", 31))
sketch4.addConstraint(Sketcher.Constraint("Vertical", 34))
sketch4.addConstraint(Sketcher.Constraint("Parallel", 0, 3))
sketch4.addConstraint(Sketcher.Constraint("Parallel", 2, 5))
sketch4.addConstraint(Sketcher.Constraint("Parallel", 3, 6))
sketch4.addConstraint(Sketcher.Constraint("Parallel", 5, 8))
sketch4.addConstraint(Sketcher.Constraint("Parallel", 6, 9))
sketch4.addConstraint(Sketcher.Constraint("Parallel", 8, 11))
sketch4.addConstraint(Sketcher.Constraint("Parallel", 9, 12))
sketch4.addConstraint(Sketcher.Constraint("Parallel", 11, 14))
sketch4.addConstraint(Sketcher.Constraint("Parallel", 12, 15))
sketch4.addConstraint(Sketcher.Constraint("Parallel", 14, 17))
sketch4.addConstraint(Sketcher.Constraint("Parallel", 15, 18))
sketch4.addConstraint(Sketcher.Constraint("Parallel", 17, 20))
sketch4.addConstraint(Sketcher.Constraint("Parallel", 18, 21))
sketch4.addConstraint(Sketcher.Constraint("Parallel", 20, 23))
sketch4.addConstraint(Sketcher.Constraint("Parallel", 21, 24))
sketch4.addConstraint(Sketcher.Constraint("Parallel", 23, 26))
sketch4.addConstraint(Sketcher.Constraint("Parallel", 24, 27))
sketch4.addConstraint(Sketcher.Constraint("Parallel", 26, 29))
sketch4.addConstraint(Sketcher.Constraint("Parallel", 27, 30))
sketch4.addConstraint(Sketcher.Constraint("Parallel", 29, 32))
sketch4.addConstraint(Sketcher.Constraint("Parallel", 30, 33))
sketch4.addConstraint(Sketcher.Constraint("Parallel", 32, 35))
sketch4.addConstraint(Sketcher.Constraint("Horizontal", 1, 2, 3, 2))
sketch4.addConstraint(Sketcher.Constraint("Horizontal", 0, 2, 4, 2))
sketch4.addConstraint(Sketcher.Constraint("Horizontal", 7, 2, 9, 2))
sketch4.addConstraint(Sketcher.Constraint("Horizontal", 6, 2, 10, 2))
sketch4.addConstraint(Sketcher.Constraint("Horizontal", 10, 2, 12, 2))
sketch4.addConstraint(Sketcher.Constraint("Horizontal", 9, 2, 13, 2))
sketch4.addConstraint(Sketcher.Constraint("Horizontal", 8, 2, 14, 2))
sketch4.addConstraint(Sketcher.Constraint("Horizontal", 13, 2, 15, 2))
sketch4.addConstraint(Sketcher.Constraint("Horizontal", 12, 2, 16, 2))
sketch4.addConstraint(Sketcher.Constraint("Horizontal", 4, 2, 18, 2))
sketch4.addConstraint(Sketcher.Constraint("Horizontal", 3, 2, 19, 2))
sketch4.addConstraint(Sketcher.Constraint("Horizontal", 2, 2, 20, 2))
sketch4.addConstraint(Sketcher.Constraint("Horizontal", 19, 2, 21, 2))
sketch4.addConstraint(Sketcher.Constraint("Horizontal", 18, 2, 22, 2))
sketch4.addConstraint(Sketcher.Constraint("Horizontal", 25, 2, 27, 2))
sketch4.addConstraint(Sketcher.Constraint("Horizontal", 24, 2, 28, 2))
sketch4.addConstraint(Sketcher.Constraint("Horizontal", 28, 2, 30, 2))
sketch4.addConstraint(Sketcher.Constraint("Horizontal", 27, 2, 31, 2))
sketch4.addConstraint(Sketcher.Constraint("Horizontal", 26, 2, 32, 2))
sketch4.addConstraint(Sketcher.Constraint("Horizontal", 31, 2, 33, 2))
sketch4.addConstraint(Sketcher.Constraint("Horizontal", 30, 2, 34, 2))
sketch4.addConstraint(Sketcher.Constraint("Vertical", 2, 2, 5, 2))
sketch4.addConstraint(Sketcher.Constraint("Equal", 4, 7))
sketch4.addConstraint(Sketcher.Constraint("Equal", 22, 25))
sketch4.addConstraint(Sketcher.Constraint("Equal", 5, 6))
sketch4.addConstraint(Sketcher.Constraint("Equal", 23, 24))
sketch4.addConstraint(Sketcher.Constraint("Angle", 0, Q("30 deg")))
sketch4.addConstraint(Sketcher.Constraint("DistanceX", 3, 2, 1, 2, Q("5.5 mm")))
sketch4.addConstraint(Sketcher.Constraint("DistanceX", 5, 2, 6, 2, Q("7.575 mm")))
sketch4.addConstraint(Sketcher.Constraint("DistanceX", 11, 2, 24, 2, Q("7.575 mm")))
sketch4.addConstraint(Sketcher.Constraint("DistanceY", -1, 1, 8, 2, Q("27.3083 mm")))
sketch4.addConstraint(Sketcher.Constraint("DistanceY", 7, 2, 0, 2, Q("15.7408 mm")))
sketch4.addConstraint(Sketcher.Constraint("DistanceY", 25, 2, 6, 2, Q("15.7408 mm")))
sketch4.addConstraint(Sketcher.Constraint("DistanceY", 1, 1, 1, 2, Q("3.175426 mm")))
sketch4.addConstraint(Sketcher.Constraint("DistanceX", 0, 2, -1, 1, Q("23.736914 mm")))
sketch4.addConstraint(Sketcher.Constraint("DistanceX", -1, 1, 12, 2, Q("20.781463 mm")))
sketch4.addConstraint(Sketcher.Constraint("DistanceX", -1, 1, 18, 2, Q("25.563086 mm")))
sketch4.addConstraint(Sketcher.Constraint("DistanceX", -1, 1, 30, 2, Q("15.913086 mm")))
pocket3 = body.newObject("PartDesign::Pocket", "Pocket002")
pocket3.Profile = sketch4
pocket3.Length = 2.4

sketch5 = body.newObject("Sketcher::SketchObject", "Sketch004")
sketch5.AttachmentSupport = (doc.getObject("XZ_Plane"), [""])
sketch5.MapMode = "FlatFace"
sketch5.AttachmentOffset = App.Placement(App.Vector(0, 0, -14.5), App.Rotation())
sketch5.addGeometry(Part.Circle(App.Vector(-16.8, 5.2, 0), App.Vector(0, 0, 1), 1.5), False)
sketch5.addGeometry(Part.Circle(App.Vector(13.2, 5.2, 0), App.Vector(0, 0, 1), 1.5), False)
sketch5.addGeometry(Part.Circle(App.Vector(18, 24.1, 0), App.Vector(0, 0, 1), 1.5), False)
sketch5.addGeometry(Part.Circle(App.Vector(-21.7, 24.1, 0), App.Vector(0, 0, 1), 1.5), False)
sketch5.addGeometry(Part.Circle(App.Vector(-26.5, 43, 0), App.Vector(0, 0, 1), 1.5), False)
sketch5.addGeometry(Part.Circle(App.Vector(22.8, 43, 0), App.Vector(0, 0, 1), 1.5), False)
sketch5.addConstraint(Sketcher.Constraint("Equal", 0, 1))
sketch5.addConstraint(Sketcher.Constraint("Equal", 1, 2))
sketch5.addConstraint(Sketcher.Constraint("Equal", 2, 3))
sketch5.addConstraint(Sketcher.Constraint("Equal", 3, 4))
sketch5.addConstraint(Sketcher.Constraint("Equal", 4, 5))
sketch5.addConstraint(Sketcher.Constraint("Horizontal", 0, 3, 1, 3))
sketch5.addConstraint(Sketcher.Constraint("Horizontal", 2, 3, 3, 3))
sketch5.addConstraint(Sketcher.Constraint("Horizontal", 4, 3, 5, 3))
sketch5.addConstraint(Sketcher.Constraint("Diameter", 0, Q("3 mm")))
sketch5.addConstraint(Sketcher.Constraint("DistanceX", 0, 3, 1, 3, Q("30 mm")))
sketch5.addConstraint(Sketcher.Constraint("DistanceX", 4, 3, 5, 3, Q("49.3 mm")))
sketch5.addConstraint(Sketcher.Constraint("DistanceX", 4, 3, 0, 3, Q("9.65 mm")))
sketch5.addConstraint(Sketcher.Constraint("DistanceX", 3, 3, 0, 3, Q("4.825 mm")))
sketch5.addConstraint(Sketcher.Constraint("DistanceY", -1, 1, 4, 3, Q("43.0491 mm")))
sketch5.addConstraint(Sketcher.Constraint("DistanceX", 0, 3, -1, 1, Q("16.836914 mm")))
sketch5.addConstraint(Sketcher.Constraint("DistanceY", -1, 1, 0, 3, Q("5.216646 mm")))
sketch5.addConstraint(Sketcher.Constraint("DistanceX", -1, 1, 2, 3, Q("18.031463 mm")))
sketch5.addConstraint(Sketcher.Constraint("DistanceY", -1, 1, 2, 3, Q("24.132873 mm")))
doc.recompute()
hole = body.newObject("PartDesign::Hole", "Hole")
hole.Profile = sketch5
hole.ThreadType = "None"
hole.Diameter = 3
hole.DepthType = "ThroughAll"
hole.Reversed = True

doc.recompute()
